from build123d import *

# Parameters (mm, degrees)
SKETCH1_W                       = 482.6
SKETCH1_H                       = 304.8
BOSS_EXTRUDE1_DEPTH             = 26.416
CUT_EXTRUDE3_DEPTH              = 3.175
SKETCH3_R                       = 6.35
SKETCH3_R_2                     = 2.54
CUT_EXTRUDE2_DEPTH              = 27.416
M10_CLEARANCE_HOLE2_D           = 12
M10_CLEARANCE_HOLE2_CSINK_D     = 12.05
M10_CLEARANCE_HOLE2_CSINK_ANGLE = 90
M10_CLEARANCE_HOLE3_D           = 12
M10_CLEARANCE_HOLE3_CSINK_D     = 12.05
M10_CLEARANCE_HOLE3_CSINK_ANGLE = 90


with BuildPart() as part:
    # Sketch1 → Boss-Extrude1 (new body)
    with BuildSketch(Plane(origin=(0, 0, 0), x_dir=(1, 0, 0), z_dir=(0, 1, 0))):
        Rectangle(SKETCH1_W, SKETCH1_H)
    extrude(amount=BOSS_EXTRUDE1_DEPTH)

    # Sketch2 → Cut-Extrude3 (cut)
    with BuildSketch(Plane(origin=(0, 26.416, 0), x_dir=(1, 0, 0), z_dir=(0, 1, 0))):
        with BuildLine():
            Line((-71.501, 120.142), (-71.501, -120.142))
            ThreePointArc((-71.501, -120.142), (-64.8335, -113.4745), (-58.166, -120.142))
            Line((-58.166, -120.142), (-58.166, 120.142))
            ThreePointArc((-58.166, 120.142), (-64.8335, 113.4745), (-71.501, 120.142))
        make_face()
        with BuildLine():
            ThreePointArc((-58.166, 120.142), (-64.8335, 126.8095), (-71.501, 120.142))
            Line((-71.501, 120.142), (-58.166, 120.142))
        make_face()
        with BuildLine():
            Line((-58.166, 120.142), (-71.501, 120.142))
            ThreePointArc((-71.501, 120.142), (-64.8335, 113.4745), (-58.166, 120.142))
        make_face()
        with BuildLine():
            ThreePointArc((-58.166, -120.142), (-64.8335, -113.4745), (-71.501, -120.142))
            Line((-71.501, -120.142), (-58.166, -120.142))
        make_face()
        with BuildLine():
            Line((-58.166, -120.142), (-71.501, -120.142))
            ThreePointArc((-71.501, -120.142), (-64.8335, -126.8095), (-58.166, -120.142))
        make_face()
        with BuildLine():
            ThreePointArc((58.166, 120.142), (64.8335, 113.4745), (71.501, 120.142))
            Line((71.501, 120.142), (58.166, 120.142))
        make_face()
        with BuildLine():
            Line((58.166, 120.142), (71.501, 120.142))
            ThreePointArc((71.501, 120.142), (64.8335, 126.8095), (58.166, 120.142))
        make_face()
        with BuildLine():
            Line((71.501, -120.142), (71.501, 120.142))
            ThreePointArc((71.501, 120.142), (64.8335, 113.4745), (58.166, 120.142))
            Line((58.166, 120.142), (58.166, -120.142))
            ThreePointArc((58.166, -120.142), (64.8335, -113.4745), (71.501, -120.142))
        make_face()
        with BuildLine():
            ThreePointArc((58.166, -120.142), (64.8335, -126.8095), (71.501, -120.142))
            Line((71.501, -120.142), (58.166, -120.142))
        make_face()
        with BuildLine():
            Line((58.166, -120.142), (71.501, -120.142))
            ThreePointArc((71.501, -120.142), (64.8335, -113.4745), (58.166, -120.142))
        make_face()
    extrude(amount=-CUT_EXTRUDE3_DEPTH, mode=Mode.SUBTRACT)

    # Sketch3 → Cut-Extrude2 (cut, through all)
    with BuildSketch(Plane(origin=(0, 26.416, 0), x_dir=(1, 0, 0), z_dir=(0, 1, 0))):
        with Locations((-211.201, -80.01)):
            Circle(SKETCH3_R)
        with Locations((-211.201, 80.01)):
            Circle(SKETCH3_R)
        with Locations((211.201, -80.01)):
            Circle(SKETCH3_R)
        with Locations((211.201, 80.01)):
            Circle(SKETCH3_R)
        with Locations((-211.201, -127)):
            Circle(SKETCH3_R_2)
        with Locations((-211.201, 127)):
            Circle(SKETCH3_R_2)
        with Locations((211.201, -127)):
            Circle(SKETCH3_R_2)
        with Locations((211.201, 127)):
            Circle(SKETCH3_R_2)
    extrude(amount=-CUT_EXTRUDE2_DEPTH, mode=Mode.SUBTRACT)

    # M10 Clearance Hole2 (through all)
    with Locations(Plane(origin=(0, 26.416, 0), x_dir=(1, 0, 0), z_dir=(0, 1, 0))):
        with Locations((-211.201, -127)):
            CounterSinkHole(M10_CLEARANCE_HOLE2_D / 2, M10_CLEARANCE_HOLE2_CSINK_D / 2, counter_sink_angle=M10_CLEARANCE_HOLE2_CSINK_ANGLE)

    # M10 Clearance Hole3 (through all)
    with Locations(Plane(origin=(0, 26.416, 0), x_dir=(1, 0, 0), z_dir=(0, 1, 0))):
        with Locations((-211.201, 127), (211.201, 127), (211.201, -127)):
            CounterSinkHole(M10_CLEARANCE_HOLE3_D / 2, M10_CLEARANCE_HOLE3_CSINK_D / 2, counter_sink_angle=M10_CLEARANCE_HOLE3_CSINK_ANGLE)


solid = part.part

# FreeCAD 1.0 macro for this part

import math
import FreeCAD as App
import Part
import Sketcher
Q = App.Units.Quantity


def add_polygon(sketch, points):
    """Adds a closed chain of lines whose ends are joined by coincident constraints."""
    first, n = sketch.GeometryCount, len(points)
    for a, b in zip(points, points[1:] + points[:1]):
        sketch.addGeometry(Part.LineSegment(App.Vector(*a, 0), App.Vector(*b, 0)), False)
    for i in range(n):
        sketch.addConstraint(Sketcher.Constraint("Coincident", first + i, 2, first + (i + 1) % n, 1))

doc = App.newDocument("Part")
body = doc.addObject("PartDesign::Body", "Body")

sketch1 = body.newObject("Sketcher::SketchObject", "Sketch")
sketch1.AttachmentSupport = (doc.getObject("XZ_Plane"), [""])
sketch1.MapMode = "FlatFace"
add_polygon(sketch1, [(-241.3, -152.4), (-241.3, 152.4), (241.3, 152.4), (241.3, -152.4)])
sketch1.addConstraint([
    Sketcher.Constraint("Vertical", 0),
    Sketcher.Constraint("Horizontal", 1),
    Sketcher.Constraint("Vertical", 2),
    Sketcher.Constraint("Horizontal", 3),
    Sketcher.Constraint("Symmetric", 0, 2, 2, 2, -1, 1),
    Sketcher.Constraint("DistanceX", 1, 1, 1, 2, Q("19 in")),
    Sketcher.Constraint("DistanceY", 0, 1, 0, 2, Q("12 in")),
])
pad1 = body.newObject("PartDesign::Pad", "Pad")
pad1.Profile = sketch1
pad1.Length = Q("1.04 in")
pad1.Reversed = True

sketch2 = body.newObject("Sketcher::SketchObject", "Sketch001")
sketch2.AttachmentSupport = (doc.getObject("XZ_Plane"), [""])
sketch2.MapMode = "FlatFace"
sketch2.AttachmentOffset = App.Placement(App.Vector(0, 0, -1.04 * 25.4), App.Rotation())
sketch2.addGeometry([
    Part.LineSegment(App.Vector(-71.501, -120.142, 0), App.Vector(-71.501, 120.142, 0)),
    Part.ArcOfCircle(Part.Circle(App.Vector(-64.8335, 120.142, 0), App.Vector(0, 0, 1), 6.6675), math.radians(0), math.radians(180)),
    Part.LineSegment(App.Vector(-58.166, 120.142, 0), App.Vector(-58.166, -120.142, 0)),
    Part.ArcOfCircle(Part.Circle(App.Vector(-64.8335, -120.142, 0), App.Vector(0, 0, 1), 6.6675), math.radians(180), math.radians(360)),
    Part.LineSegment(App.Vector(58.166, -120.142, 0), App.Vector(58.166, 120.142, 0)),
    Part.ArcOfCircle(Part.Circle(App.Vector(64.8335, 120.142, 0), App.Vector(0, 0, 1), 6.6675), math.radians(0), math.radians(180)),
    Part.LineSegment(App.Vector(71.501, 120.142, 0), App.Vector(71.501, -120.142, 0)),
    Part.ArcOfCircle(Part.Circle(App.Vector(64.8335, -120.142, 0), App.Vector(0, 0, 1), 6.6675), math.radians(180), math.radians(360)),
], False)
sketch2.addConstraint([
    Sketcher.Constraint("Tangent", 0, 2, 1, 2),
    Sketcher.Constraint("Tangent", 1, 1, 2, 1),
    Sketcher.Constraint("Tangent", 2, 2, 3, 2),
    Sketcher.Constraint("Tangent", 3, 1, 0, 1),
    Sketcher.Constraint("Tangent", 4, 2, 5, 2),
    Sketcher.Constraint("Tangent", 5, 1, 6, 1),
    Sketcher.Constraint("Tangent", 6, 2, 7, 2),
    Sketcher.Constraint("Tangent", 7, 1, 4, 1),
    Sketcher.Constraint("Vertical", 0),
    Sketcher.Constraint("Vertical", 2),
    Sketcher.Constraint("Vertical", 4),
    Sketcher.Constraint("Vertical", 6),
    Sketcher.Constraint("Equal", 3, 5),
    Sketcher.Constraint("Symmetric", 3, 3, 5, 3, -1, 1),
    Sketcher.Constraint("Horizontal", 1, 3, 5, 3),
    Sketcher.Constraint("Horizontal", 3, 3, 7, 3),
    Sketcher.Constraint("DistanceY", 0, 1, 0, 2, Q("9.46 in")),
    Sketcher.Constraint("Radius", 1, Q("0.2625 in")),
    Sketcher.Constraint("DistanceX", 1, 1, -1, 1, Q("2.29 in")),
])
pocket1 = body.newObject("PartDesign::Pocket", "Pocket")
pocket1.Profile = sketch2
pocket1.Length = Q("0.125 in")
pocket1.Reversed = True

sketch3 = body.newObject("Sketcher::SketchObject", "Sketch002")
sketch3.AttachmentSupport = (doc.getObject("XZ_Plane"), [""])
sketch3.MapMode = "FlatFace"
sketch3.AttachmentOffset = App.Placement(App.Vector(0, 0, -1.04 * 25.4), App.Rotation())
sketch3.addGeometry([
    Part.Circle(App.Vector(-211.201, 80.01, 0), App.Vector(0, 0, 1), 6.35),
    Part.Circle(App.Vector(-211.201, -80.01, 0), App.Vector(0, 0, 1), 6.35),
    Part.Circle(App.Vector(211.201, 80.01, 0), App.Vector(0, 0, 1), 6.35),
    Part.Circle(App.Vector(211.201, -80.01, 0), App.Vector(0, 0, 1), 6.35),
    Part.Circle(App.Vector(-211.201, 127, 0), App.Vector(0, 0, 1), 2.54),
    Part.Circle(App.Vector(-211.201, -127, 0), App.Vector(0, 0, 1), 2.54),
    Part.Circle(App.Vector(211.201, 127, 0), App.Vector(0, 0, 1), 2.54),
    Part.Circle(App.Vector(211.201, -127, 0), App.Vector(0, 0, 1), 2.54),
], False)
sketch3.addConstraint([
    Sketcher.Constraint("Equal", 0, 1),
    Sketcher.Constraint("Equal", 1, 2),
    Sketcher.Constraint("Equal", 2, 3),
    Sketcher.Constraint("Equal", 4, 5),
    Sketcher.Constraint("Equal", 5, 6),
    Sketcher.Constraint("Equal", 6, 7),
    Sketcher.Constraint("Symmetric", 1, 3, 2, 3, -1, 1),
    Sketcher.Constraint("Symmetric", 0, 3, 3, 3, -1, 1),
    Sketcher.Constraint("Symmetric", 5, 3, 6, 3, -1, 1),
    Sketcher.Constraint("Symmetric", 4, 3, 7, 3, -1, 1),
    Sketcher.Constraint("Symmetric", 0, 3, 2, 3, -2),
    Sketcher.Constraint("Symmetric", 4, 3, 6, 3, -2),
    Sketcher.Constraint("Vertical", 1, 3, 4, 3),
    Sketcher.Constraint("Diameter", 0, Q("0.5 in")),
    Sketcher.Constraint("Diameter", 4, Q("0.2 in")),
    Sketcher.Constraint("DistanceY", -1, 1, 4, 3, Q("5 in")),
    Sketcher.Constraint("DistanceY", 1, 3, 0, 3, Q("6.3 in")),
    Sketcher.Constraint("DistanceX", 0, 3, 2, 3, Q("16.63 in")),
])
pocket2 = body.newObject("PartDesign::Pocket", "Pocket001")
pocket2.Profile = sketch3
pocket2.Type = "ThroughAll"
pocket2.Reversed = True

sketch4 = body.newObject("Sketcher::SketchObject", "Sketch003")
sketch4.AttachmentSupport = (doc.getObject("XZ_Plane"), [""])
sketch4.MapMode = "FlatFace"
sketch4.AttachmentOffset = App.Placement(App.Vector(0, 0, -1.04 * 25.4), App.Rotation())
sketch4.addGeometry(Part.Circle(App.Vector(-211.201, 127, 0), App.Vector(0, 0, 1), 6), False)
sketch4.addConstraint([
    Sketcher.Constraint("DistanceY", -1, 1, 0, 3, Q("5 in")),
    Sketcher.Constraint("Diameter", 0, Q("12 mm")),
    Sketcher.Constraint("DistanceX", 0, 3, -1, 1, Q("8.315 in")),
])
doc.recompute()
hole = body.newObject("PartDesign::Hole", "Hole")
hole.Profile = sketch4
hole.ThreadType = "None"
hole.Diameter = 12
hole.DepthType = "ThroughAll"
hole.HoleCutType = "Countersink"
hole.HoleCutDiameter = 12.05
hole.HoleCutCountersinkAngle = 90
hole.Reversed = True

sketch5 = body.newObject("Sketcher::SketchObject", "Sketch004")
sketch5.AttachmentSupport = (doc.getObject("XZ_Plane"), [""])
sketch5.MapMode = "FlatFace"
sketch5.AttachmentOffset = App.Placement(App.Vector(0, 0, -1.04 * 25.4), App.Rotation())
sketch5.addGeometry([
    Part.Circle(App.Vector(-211.201, -127, 0), App.Vector(0, 0, 1), 6),
    Part.Circle(App.Vector(211.201, -127, 0), App.Vector(0, 0, 1), 6),
    Part.Circle(App.Vector(211.201, 127, 0), App.Vector(0, 0, 1), 6),
], False)
sketch5.addConstraint([
    Sketcher.Constraint("Equal", 0, 1),
    Sketcher.Constraint("Equal", 1, 2),
    Sketcher.Constraint("Symmetric", 0, 3, 2, 3, -1, 1),
    Sketcher.Constraint("Symmetric", 0, 3, 1, 3, -2),
    Sketcher.Constraint("DistanceY", 0, 3, -1, 1, Q("5 in")),
    Sketcher.Constraint("Diameter", 0, Q("12 mm")),
    Sketcher.Constraint("DistanceX", 0, 3, 1, 3, Q("16.63 in")),
])
doc.recompute()
hole2 = body.newObject("PartDesign::Hole", "Hole001")
hole2.Profile = sketch5
hole2.ThreadType = "None"
hole2.Diameter = 12
hole2.DepthType = "ThroughAll"
hole2.HoleCutType = "Countersink"
hole2.HoleCutDiameter = 12.05
hole2.HoleCutCountersinkAngle = 90
hole2.Reversed = True

doc.recompute()
